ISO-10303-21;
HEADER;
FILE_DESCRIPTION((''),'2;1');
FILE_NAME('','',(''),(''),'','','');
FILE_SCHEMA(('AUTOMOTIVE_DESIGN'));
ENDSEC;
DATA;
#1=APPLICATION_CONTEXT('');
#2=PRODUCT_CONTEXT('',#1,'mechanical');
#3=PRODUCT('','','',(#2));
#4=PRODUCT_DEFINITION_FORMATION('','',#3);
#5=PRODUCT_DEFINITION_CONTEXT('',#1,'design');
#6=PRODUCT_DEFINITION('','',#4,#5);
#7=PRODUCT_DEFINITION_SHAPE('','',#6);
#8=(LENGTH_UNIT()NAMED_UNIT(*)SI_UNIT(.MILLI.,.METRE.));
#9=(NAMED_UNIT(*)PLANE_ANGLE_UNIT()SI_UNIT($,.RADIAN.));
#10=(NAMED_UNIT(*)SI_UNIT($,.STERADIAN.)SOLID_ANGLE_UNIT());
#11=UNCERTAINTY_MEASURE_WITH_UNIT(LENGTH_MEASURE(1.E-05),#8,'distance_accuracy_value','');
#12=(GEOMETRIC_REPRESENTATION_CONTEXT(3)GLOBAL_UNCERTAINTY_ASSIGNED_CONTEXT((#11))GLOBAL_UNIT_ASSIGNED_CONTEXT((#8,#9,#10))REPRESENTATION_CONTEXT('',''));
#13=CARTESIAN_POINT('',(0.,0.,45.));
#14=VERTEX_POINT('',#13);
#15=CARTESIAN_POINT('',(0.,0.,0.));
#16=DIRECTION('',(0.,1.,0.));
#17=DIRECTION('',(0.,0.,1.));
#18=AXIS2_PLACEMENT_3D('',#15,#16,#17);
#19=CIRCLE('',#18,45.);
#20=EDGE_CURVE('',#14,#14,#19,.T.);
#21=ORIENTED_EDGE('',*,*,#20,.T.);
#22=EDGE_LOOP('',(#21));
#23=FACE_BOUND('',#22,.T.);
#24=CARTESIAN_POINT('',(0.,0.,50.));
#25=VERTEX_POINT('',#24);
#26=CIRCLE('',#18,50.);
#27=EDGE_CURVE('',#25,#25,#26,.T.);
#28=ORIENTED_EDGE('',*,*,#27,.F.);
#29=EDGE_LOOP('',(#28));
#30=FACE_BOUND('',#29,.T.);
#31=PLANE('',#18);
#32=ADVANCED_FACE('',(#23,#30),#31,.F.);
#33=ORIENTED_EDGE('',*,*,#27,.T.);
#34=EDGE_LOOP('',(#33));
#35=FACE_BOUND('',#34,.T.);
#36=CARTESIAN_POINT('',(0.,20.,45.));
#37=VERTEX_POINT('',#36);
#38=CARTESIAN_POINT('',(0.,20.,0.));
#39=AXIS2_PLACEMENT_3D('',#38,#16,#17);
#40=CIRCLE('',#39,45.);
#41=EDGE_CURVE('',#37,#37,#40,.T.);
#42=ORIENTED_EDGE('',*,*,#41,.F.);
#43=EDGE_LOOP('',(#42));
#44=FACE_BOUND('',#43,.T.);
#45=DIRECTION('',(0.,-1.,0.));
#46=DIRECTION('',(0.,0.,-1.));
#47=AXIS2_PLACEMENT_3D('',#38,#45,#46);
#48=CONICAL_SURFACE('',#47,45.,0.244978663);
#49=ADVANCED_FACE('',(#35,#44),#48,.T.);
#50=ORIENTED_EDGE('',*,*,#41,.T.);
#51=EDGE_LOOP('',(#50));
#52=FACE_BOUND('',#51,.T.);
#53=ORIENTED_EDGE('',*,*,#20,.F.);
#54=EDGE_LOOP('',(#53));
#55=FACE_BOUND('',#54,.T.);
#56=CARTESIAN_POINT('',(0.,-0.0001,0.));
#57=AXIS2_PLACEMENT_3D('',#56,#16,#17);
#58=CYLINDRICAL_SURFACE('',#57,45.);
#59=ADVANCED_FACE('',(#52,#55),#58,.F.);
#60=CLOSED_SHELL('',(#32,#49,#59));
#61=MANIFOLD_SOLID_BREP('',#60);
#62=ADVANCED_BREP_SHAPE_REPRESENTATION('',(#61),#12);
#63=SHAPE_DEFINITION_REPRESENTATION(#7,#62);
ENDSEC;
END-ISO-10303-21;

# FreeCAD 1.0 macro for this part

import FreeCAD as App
import Part
import Sketcher
from FreeCAD import Vector
Q = App.Units.Quantity

doc = App.newDocument("Part")
body = doc.addObject("PartDesign::Body", "Body")

# Sketch on XZ plane
sketch1 = body.newObject("Sketcher::SketchObject", "Sketch")
sketch1.AttachmentSupport = (doc.getObject("XZ_Plane"), [""])
sketch1.MapMode = "FlatFace"
sketch1.addGeometry(Part.Circle(Vector(0, 0, 0), Vector(0, 0, 1), 50), False)
sketch1.addConstraint([
    Sketcher.Constraint("Coincident", 0, 3, -1, 1),
    Sketcher.Constraint("Diameter", 0, Q("100 mm")),
])

# Sketch on XZ plane
sketch2 = body.newObject("Sketcher::SketchObject", "Sketch001")
sketch2.AttachmentSupport = (doc.getObject("XZ_Plane"), [""])
sketch2.MapMode = "FlatFace"
sketch2.AttachmentOffset = App.Placement(Vector(0, 0, -20), App.Rotation())
sketch2.addGeometry(Part.Circle(Vector(0, 0, 0), Vector(0, 0, 1), 45), False)
sketch2.addConstraint([
    Sketcher.Constraint("Coincident", 0, 3, -1, 1),
    Sketcher.Constraint("Diameter", 0, Q("90 mm")),
])

additiveloft = body.newObject("PartDesign::AdditiveLoft", "AdditiveLoft")
additiveloft.Profile = sketch1
additiveloft.Sections = [sketch2]

# Sketch on XZ plane
sketch3 = body.newObject("Sketcher::SketchObject", "Sketch002")
sketch3.AttachmentSupport = (doc.getObject("XZ_Plane"), [""])
sketch3.MapMode = "FlatFace"
sketch3.AttachmentOffset = App.Placement(Vector(0, 0, -20), App.Rotation())
sketch3.addGeometry(Part.Circle(Vector(0, 0, 0), Vector(0, 0, 1), 45), False)
sketch3.addConstraint([
    Sketcher.Constraint("Coincident", 0, 3, -1, 1),
    Sketcher.Constraint("Diameter", 0, Q("90 mm")),
])
pocket1 = body.newObject("PartDesign::Pocket", "Pocket")
pocket1.Profile = sketch3
pocket1.Type = "ThroughAll"
pocket1.Reversed = True

doc.recompute()
